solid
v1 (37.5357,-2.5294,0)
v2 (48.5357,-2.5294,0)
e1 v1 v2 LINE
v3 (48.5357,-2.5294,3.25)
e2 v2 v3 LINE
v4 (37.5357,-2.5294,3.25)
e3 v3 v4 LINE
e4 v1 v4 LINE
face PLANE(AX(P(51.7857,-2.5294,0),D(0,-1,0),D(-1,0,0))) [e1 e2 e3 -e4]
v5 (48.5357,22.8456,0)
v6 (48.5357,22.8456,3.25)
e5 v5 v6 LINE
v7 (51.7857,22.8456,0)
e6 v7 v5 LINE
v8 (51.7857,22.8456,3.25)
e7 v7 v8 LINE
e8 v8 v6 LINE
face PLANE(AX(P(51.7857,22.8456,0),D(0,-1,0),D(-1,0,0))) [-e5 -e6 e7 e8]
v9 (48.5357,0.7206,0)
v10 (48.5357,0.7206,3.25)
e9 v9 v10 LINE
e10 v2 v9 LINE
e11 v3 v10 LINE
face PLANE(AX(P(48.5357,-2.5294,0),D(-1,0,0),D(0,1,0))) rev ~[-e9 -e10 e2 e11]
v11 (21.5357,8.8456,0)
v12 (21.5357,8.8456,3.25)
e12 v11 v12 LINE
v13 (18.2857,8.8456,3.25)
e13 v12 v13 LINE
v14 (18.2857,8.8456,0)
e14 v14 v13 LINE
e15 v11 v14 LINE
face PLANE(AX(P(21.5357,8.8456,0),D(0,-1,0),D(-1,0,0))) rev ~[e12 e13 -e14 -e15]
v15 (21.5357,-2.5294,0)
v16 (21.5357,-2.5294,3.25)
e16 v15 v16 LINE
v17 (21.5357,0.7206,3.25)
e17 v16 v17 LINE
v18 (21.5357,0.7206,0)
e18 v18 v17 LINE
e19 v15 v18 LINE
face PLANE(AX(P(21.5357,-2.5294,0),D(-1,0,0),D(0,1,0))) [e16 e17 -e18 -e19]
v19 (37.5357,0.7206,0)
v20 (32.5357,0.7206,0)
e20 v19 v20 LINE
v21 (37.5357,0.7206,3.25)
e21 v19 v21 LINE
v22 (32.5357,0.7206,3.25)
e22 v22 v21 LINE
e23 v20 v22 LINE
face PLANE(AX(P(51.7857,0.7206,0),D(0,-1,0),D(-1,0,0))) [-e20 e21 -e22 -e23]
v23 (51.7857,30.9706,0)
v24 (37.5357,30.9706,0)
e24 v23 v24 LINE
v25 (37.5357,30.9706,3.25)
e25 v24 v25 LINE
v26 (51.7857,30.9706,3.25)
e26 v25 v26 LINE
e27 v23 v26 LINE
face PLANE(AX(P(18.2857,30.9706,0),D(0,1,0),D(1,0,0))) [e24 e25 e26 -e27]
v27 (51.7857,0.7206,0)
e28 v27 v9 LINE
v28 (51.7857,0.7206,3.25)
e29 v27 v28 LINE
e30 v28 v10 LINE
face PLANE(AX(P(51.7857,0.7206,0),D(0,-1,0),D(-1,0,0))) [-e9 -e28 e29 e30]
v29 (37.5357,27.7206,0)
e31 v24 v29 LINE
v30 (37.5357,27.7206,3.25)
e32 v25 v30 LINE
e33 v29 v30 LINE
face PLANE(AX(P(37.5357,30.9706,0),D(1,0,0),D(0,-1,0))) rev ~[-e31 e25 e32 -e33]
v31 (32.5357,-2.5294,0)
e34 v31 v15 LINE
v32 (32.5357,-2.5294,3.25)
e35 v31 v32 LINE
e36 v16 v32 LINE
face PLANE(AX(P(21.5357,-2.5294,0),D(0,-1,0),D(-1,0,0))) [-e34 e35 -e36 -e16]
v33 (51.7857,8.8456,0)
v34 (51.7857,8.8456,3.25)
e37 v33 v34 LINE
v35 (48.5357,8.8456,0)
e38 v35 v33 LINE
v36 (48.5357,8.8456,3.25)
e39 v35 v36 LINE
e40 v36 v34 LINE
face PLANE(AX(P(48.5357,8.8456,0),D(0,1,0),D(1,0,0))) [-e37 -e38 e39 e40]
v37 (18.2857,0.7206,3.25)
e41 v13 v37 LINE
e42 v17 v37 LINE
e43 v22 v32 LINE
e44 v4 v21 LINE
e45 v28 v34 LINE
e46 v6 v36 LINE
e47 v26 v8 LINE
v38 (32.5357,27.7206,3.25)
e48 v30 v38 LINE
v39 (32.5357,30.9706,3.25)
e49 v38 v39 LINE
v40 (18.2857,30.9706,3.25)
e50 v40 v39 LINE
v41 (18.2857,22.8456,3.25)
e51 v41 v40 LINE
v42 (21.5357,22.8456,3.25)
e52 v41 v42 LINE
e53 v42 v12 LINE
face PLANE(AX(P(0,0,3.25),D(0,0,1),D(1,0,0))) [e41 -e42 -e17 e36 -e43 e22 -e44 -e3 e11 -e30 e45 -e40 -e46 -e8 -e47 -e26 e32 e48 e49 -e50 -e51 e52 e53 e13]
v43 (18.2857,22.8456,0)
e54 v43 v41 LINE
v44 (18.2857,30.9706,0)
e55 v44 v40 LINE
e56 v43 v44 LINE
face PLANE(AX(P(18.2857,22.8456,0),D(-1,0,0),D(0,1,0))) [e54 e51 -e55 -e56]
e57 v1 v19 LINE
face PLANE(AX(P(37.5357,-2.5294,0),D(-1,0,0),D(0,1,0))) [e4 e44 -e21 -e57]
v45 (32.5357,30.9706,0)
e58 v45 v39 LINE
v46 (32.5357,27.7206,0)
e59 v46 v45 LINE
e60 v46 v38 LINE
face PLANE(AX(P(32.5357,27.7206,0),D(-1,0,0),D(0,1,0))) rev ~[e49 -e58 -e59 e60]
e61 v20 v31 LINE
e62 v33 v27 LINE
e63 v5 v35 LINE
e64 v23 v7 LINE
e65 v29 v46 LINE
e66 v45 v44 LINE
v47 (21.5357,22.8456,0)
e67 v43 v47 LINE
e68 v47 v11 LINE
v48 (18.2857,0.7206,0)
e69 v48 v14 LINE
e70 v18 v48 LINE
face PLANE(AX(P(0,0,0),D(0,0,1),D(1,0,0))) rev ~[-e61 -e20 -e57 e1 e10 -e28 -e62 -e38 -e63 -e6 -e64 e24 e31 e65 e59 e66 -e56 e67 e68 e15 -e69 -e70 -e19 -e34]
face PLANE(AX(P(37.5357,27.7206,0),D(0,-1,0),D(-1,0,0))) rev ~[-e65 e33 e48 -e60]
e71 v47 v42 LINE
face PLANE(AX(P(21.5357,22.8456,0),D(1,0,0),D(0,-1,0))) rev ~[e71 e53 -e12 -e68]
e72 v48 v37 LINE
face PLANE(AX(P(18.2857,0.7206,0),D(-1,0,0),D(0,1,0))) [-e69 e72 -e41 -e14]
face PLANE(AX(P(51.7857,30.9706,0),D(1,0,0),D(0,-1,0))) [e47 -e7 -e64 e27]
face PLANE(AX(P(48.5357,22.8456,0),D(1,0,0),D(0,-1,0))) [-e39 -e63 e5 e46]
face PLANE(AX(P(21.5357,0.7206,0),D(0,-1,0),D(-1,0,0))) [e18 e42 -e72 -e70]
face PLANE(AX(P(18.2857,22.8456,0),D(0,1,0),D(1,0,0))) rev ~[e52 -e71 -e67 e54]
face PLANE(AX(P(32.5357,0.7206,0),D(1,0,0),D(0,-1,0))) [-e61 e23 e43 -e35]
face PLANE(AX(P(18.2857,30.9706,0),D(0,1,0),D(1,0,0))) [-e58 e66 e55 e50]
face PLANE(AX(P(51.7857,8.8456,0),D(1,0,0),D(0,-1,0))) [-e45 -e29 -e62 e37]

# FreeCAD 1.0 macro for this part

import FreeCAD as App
import Part
import Sketcher


def add_polygon(sketch, points):
    """Adds a closed chain of lines whose ends are joined by coincident constraints."""
    first, n = sketch.GeometryCount, len(points)
    for a, b in zip(points, points[1:] + points[:1]):
        sketch.addGeometry(Part.LineSegment(App.Vector(*a, 0), App.Vector(*b, 0)), False)
    for i in range(n):
        sketch.addConstraint(Sketcher.Constraint("Coincident", first + i, 2, first + (i + 1) % n, 1))

doc = App.newDocument("Part")
body = doc.addObject("PartDesign::Body", "Body")

# Sketch on XY plane
sketch1 = body.newObject("Sketcher::SketchObject", "Sketch")
sketch1.AttachmentSupport = (doc.getObject("XY_Plane"), [""])
sketch1.MapMode = "FlatFace"
add_polygon(sketch1, [(18.3, 31), (18.3, 22.8), (21.5, 22.8), (21.5, 8.8), (18.3, 8.8), (18.3, 0.7), (51.8, 0.7), (51.8, 8.8), (48.5, 8.8), (48.5, 22.8), (51.8, 22.8), (51.8, 31)])  # lines 0-11
sketch1.addConstraint(Sketcher.Constraint("Vertical", 0))
sketch1.addConstraint(Sketcher.Constraint("Horizontal", 1))
sketch1.addConstraint(Sketcher.Constraint("Vertical", 2))
sketch1.addConstraint(Sketcher.Constraint("Horizontal", 3))
sketch1.addConstraint(Sketcher.Constraint("Vertical", 4))
sketch1.addConstraint(Sketcher.Constraint("Horizontal", 5))
sketch1.addConstraint(Sketcher.Constraint("Vertical", 6))
sketch1.addConstraint(Sketcher.Constraint("Horizontal", 7))
sketch1.addConstraint(Sketcher.Constraint("Vertical", 8))
sketch1.addConstraint(Sketcher.Constraint("Horizontal", 9))
sketch1.addConstraint(Sketcher.Constraint("Vertical", 10))
sketch1.addConstraint(Sketcher.Constraint("Horizontal", 11))
sketch1.addConstraint(Sketcher.Constraint("Horizontal", 3, 2, 6, 2))
sketch1.addConstraint(Sketcher.Constraint("Horizontal", 1, 2, 8, 2))
sketch1.addConstraint(Sketcher.Constraint("Vertical", 0, 2, 3, 2))
sketch1.addConstraint(Sketcher.Constraint("Vertical", 6, 2, 9, 2))
sketch1.addConstraint(Sketcher.Constraint("Equal", 3, 7))
sketch1.addConstraint(Sketcher.Constraint("Equal", 0, 4))
sketch1.addConstraint(Sketcher.Constraint("DistanceY", 2, 2, 2, 1, 14.0))
sketch1.addConstraint(Sketcher.Constraint("DistanceX", 5, 1, 5, 2, 33.5))
sketch1.addConstraint(Sketcher.Constraint("DistanceX", 1, 1, 1, 2, 3.25))
sketch1.addConstraint(Sketcher.Constraint("DistanceY", 0, 2, 0, 1, 8.125))
sketch1.addConstraint(Sketcher.Constraint("DistanceX", -1, 1, 0, 2, 18.2857))
sketch1.addConstraint(Sketcher.Constraint("DistanceY", -1, 1, 0, 2, 22.8456))
pad1 = body.newObject("PartDesign::Pad", "Pad")
pad1.Profile = sketch1
pad1.Length = 3.25

# Sketch on XY plane
sketch2 = body.newObject("Sketcher::SketchObject", "Sketch001")
sketch2.AttachmentSupport = (doc.getObject("XY_Plane"), [""])
sketch2.MapMode = "FlatFace"
add_polygon(sketch2, [(18.3, 0.7), (18.3, -2.5), (32.5, -2.5), (32.5, 0.7)])  # lines 0-3
add_polygon(sketch2, [(51.8, -2.5), (51.8, 0.7), (37.5, 0.7), (37.5, -2.5)])  # lines 4-7
sketch2.addConstraint(Sketcher.Constraint("Vertical", 0))
sketch2.addConstraint(Sketcher.Constraint("Horizontal", 1))
sketch2.addConstraint(Sketcher.Constraint("Vertical", 2))
sketch2.addConstraint(Sketcher.Constraint("Horizontal", 3))
sketch2.addConstraint(Sketcher.Constraint("Vertical", 4))
sketch2.addConstraint(Sketcher.Constraint("Horizontal", 5))
sketch2.addConstraint(Sketcher.Constraint("Vertical", 6))
sketch2.addConstraint(Sketcher.Constraint("Horizontal", 7))
sketch2.addConstraint(Sketcher.Constraint("Horizontal", 3, 2, 4, 2))
sketch2.addConstraint(Sketcher.Constraint("Horizontal", 1, 2, 6, 2))
sketch2.addConstraint(Sketcher.Constraint("Equal", 3, 5))
sketch2.addConstraint(Sketcher.Constraint("DistanceX", 2, 2, 5, 2, 5.0))
sketch2.addConstraint(Sketcher.Constraint("DistanceY", 0, 2, 0, 1, 3.25))
sketch2.addConstraint(Sketcher.Constraint("DistanceX", 3, 2, 4, 2, 33.5))
sketch2.addConstraint(Sketcher.Constraint("DistanceX", -1, 1, 0, 2, 18.2857))
sketch2.addConstraint(Sketcher.Constraint("DistanceY", 0, 2, -1, 1, 2.5294))
pad2 = body.newObject("PartDesign::Pad", "Pad001")
pad2.Profile = sketch2
pad2.Length = 3.25

# Sketch on XY plane
sketch3 = body.newObject("Sketcher::SketchObject", "Sketch002")
sketch3.AttachmentSupport = (doc.getObject("XY_Plane"), [""])
sketch3.MapMode = "FlatFace"
add_polygon(sketch3, [(21.5, 0.7), (18.3, 0.7), (18.3, -2.5), (21.5, -2.5)])  # lines 0-3
add_polygon(sketch3, [(51.8, -2.5), (51.8, 0.7), (48.5, 0.7), (48.5, -2.5)])  # lines 4-7
sketch3.addConstraint(Sketcher.Constraint("Horizontal", 0))
sketch3.addConstraint(Sketcher.Constraint("Vertical", 1))
sketch3.addConstraint(Sketcher.Constraint("Horizontal", 2))
sketch3.addConstraint(Sketcher.Constraint("Vertical", 3))
sketch3.addConstraint(Sketcher.Constraint("Vertical", 4))
sketch3.addConstraint(Sketcher.Constraint("Horizontal", 5))
sketch3.addConstraint(Sketcher.Constraint("Vertical", 6))
sketch3.addConstraint(Sketcher.Constraint("Horizontal", 7))
sketch3.addConstraint(Sketcher.Constraint("Horizontal", 3, 2, 4, 2))
sketch3.addConstraint(Sketcher.Constraint("Horizontal", 2, 2, 6, 2))
sketch3.addConstraint(Sketcher.Constraint("Equal", 2, 5))
sketch3.addConstraint(Sketcher.Constraint("Equal", 7, 1))
sketch3.addConstraint(Sketcher.Constraint("DistanceX", 0, 2, 0, 1, 3.25))
sketch3.addConstraint(Sketcher.Constraint("DistanceX", 0, 2, 4, 2, 33.5))
sketch3.addConstraint(Sketcher.Constraint("DistanceX", -1, 1, 0, 2, 18.2857))
sketch3.addConstraint(Sketcher.Constraint("DistanceY", -1, 1, 0, 2, 0.7206))
pocket1 = body.newObject("PartDesign::Pocket", "Pocket")
pocket1.Profile = sketch3
pocket1.Length = 3.25
pocket1.Reversed = True

# Sketch on XY plane
sketch4 = body.newObject("Sketcher::SketchObject", "Sketch003")
sketch4.AttachmentSupport = (doc.getObject("XY_Plane"), [""])
sketch4.MapMode = "FlatFace"
add_polygon(sketch4, [(37.5, 31), (32.5, 31), (32.5, 27.7), (37.5, 27.7)])  # lines 0-3
sketch4.addConstraint(Sketcher.Constraint("Horizontal", 0))
sketch4.addConstraint(Sketcher.Constraint("Vertical", 1))
sketch4.addConstraint(Sketcher.Constraint("Horizontal", 2))
sketch4.addConstraint(Sketcher.Constraint("Vertical", 3))
sketch4.addConstraint(Sketcher.Constraint("DistanceX", 0, 2, 0, 1, 5.0))
sketch4.addConstraint(Sketcher.Constraint("DistanceY", 1, 2, 1, 1, 3.25))
sketch4.addConstraint(Sketcher.Constraint("DistanceX", -1, 1, 0, 2, 32.5357))
sketch4.addConstraint(Sketcher.Constraint("DistanceY", -1, 1, 0, 2, 30.9706))
pocket2 = body.newObject("PartDesign::Pocket", "Pocket001")
pocket2.Profile = sketch4
pocket2.Length = 3.25
pocket2.Reversed = True

doc.recompute()
